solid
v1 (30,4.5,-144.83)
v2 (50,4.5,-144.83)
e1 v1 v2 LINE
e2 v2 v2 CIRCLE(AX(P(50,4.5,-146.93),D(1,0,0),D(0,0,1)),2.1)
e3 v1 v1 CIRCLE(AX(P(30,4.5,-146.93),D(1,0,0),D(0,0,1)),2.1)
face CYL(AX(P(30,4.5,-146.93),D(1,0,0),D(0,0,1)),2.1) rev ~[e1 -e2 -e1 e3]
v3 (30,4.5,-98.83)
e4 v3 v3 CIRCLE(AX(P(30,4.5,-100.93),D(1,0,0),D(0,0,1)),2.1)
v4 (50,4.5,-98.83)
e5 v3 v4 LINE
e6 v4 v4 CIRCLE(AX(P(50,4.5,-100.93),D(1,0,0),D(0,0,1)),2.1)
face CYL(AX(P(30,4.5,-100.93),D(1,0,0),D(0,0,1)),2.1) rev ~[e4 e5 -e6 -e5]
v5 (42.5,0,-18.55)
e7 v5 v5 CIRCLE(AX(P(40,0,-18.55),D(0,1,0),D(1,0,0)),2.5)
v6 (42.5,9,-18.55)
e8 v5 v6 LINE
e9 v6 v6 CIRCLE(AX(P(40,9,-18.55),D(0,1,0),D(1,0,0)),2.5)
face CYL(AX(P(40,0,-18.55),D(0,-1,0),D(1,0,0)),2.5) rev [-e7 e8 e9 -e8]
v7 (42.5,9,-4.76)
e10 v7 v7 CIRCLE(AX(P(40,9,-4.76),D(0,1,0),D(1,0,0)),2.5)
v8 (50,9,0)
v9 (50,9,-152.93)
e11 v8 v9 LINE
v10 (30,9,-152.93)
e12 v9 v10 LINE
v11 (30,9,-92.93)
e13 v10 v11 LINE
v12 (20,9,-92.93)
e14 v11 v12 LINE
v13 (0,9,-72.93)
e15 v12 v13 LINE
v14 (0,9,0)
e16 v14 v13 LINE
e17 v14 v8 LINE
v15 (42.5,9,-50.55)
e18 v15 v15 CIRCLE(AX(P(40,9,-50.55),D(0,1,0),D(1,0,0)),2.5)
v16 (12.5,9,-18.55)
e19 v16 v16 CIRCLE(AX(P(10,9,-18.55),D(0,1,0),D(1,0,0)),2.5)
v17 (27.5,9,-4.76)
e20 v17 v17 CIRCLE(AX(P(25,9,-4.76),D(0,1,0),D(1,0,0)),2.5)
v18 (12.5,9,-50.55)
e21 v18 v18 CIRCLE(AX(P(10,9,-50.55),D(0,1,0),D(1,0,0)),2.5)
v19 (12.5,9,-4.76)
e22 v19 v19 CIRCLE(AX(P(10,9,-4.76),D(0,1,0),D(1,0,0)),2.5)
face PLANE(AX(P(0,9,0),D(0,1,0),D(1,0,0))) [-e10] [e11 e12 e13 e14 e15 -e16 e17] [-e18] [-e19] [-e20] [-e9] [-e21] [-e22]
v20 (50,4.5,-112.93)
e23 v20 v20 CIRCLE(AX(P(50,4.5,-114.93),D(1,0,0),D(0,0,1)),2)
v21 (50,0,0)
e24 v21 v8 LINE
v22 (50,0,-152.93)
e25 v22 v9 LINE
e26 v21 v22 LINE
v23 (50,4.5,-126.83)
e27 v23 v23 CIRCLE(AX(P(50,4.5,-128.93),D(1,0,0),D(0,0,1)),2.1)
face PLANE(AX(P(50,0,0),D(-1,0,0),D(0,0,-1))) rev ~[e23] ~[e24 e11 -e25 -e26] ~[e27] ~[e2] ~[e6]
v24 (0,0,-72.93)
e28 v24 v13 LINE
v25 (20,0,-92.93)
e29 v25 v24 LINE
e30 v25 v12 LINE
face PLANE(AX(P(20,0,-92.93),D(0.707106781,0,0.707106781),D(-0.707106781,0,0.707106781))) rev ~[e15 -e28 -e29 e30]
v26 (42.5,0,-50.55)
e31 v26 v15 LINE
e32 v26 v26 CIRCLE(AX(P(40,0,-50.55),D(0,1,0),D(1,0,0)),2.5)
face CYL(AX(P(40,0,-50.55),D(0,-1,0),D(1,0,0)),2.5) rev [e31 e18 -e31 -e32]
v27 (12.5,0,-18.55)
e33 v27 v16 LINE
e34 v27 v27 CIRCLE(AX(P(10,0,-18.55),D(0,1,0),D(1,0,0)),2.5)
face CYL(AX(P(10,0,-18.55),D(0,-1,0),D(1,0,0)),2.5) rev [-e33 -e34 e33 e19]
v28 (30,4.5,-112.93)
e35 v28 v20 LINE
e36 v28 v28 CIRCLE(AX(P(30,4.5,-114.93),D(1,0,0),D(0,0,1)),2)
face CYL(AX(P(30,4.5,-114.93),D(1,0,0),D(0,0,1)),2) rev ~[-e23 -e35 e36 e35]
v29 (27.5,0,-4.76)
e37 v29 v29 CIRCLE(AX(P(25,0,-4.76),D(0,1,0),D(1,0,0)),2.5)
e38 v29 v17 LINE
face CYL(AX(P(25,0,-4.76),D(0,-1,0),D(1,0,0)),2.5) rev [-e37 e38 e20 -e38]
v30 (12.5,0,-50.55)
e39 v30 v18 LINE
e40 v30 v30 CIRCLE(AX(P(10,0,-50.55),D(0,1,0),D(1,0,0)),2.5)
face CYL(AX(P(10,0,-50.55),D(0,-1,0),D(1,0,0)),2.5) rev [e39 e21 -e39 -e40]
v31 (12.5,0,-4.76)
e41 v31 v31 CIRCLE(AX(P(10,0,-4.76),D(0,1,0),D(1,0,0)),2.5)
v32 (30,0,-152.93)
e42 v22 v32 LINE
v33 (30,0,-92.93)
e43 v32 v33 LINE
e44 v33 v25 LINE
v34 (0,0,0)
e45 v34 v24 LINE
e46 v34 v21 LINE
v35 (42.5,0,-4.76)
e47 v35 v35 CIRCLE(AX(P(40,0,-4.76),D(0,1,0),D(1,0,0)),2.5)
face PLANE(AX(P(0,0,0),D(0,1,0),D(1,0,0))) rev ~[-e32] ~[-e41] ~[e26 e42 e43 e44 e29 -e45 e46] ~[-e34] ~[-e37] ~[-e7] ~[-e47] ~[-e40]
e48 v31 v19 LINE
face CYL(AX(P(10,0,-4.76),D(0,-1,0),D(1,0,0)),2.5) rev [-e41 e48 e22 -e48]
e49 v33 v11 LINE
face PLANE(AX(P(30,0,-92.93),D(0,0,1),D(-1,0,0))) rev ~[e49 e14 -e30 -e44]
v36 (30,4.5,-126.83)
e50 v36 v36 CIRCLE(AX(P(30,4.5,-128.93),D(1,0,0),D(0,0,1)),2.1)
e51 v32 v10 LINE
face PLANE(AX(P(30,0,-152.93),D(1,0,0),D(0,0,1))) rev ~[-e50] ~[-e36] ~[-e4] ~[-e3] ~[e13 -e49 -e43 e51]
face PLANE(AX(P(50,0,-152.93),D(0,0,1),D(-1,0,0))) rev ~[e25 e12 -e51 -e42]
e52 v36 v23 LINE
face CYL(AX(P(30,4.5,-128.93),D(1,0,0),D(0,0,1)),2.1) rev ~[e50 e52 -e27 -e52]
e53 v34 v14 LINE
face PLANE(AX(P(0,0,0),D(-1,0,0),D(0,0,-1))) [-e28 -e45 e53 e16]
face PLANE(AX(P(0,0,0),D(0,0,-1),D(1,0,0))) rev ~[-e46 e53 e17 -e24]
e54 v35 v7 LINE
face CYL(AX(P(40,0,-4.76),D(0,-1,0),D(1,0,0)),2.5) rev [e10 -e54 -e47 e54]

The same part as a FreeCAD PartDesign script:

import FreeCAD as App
import Part
import Sketcher
from FreeCAD import Vector


def add_polygon(sketch, points):
    """Adds a closed chain of lines whose ends are joined by coincident constraints."""
    first, n = sketch.GeometryCount, len(points)
    for a, b in zip(points, points[1:] + points[:1]):
        sketch.addGeometry(Part.LineSegment(App.Vector(*a, 0), App.Vector(*b, 0)), False)
    for i in range(n):
        sketch.addConstraint(Sketcher.Constraint("Coincident", first + i, 2, first + (i + 1) % n, 1))

doc = App.newDocument("Part")
params = doc.addObject("Spreadsheet::Sheet", "Params")
for row, (alias, value) in enumerate([
    ("sketch1_diameter", "5 mm"),
    ("sketch1_width", "50 mm"),
    ("sketch1_width2", "20 mm"),
    ("sketch1_width3", "10 mm"),
    ("sketch1_height", "60 mm"),
    ("pad1_length", "9 mm"),
    ("sketch2_diameter", "4.2 mm"),
    ("hole_diameter", "4.2 mm"),
    ("hole_depth", "20 mm"),
    ("sketch3_diameter", "4.2 mm"),
    ("hole2_diameter", "4.2 mm"),
    ("sketch4_diameter", "4 mm"),
    ("hole3_diameter", "4 mm"),
    ("hole3_depth", "20 mm"),
    ("sketch5_diameter", "4.2 mm"),
    ("hole4_diameter", "4.2 mm"),
    ("hole4_depth", "20 mm"),
], start=1):
    params.set(f"A{row}", alias)
    params.set(f"B{row}", "=" + value)
    params.setAlias(f"B{row}", alias)

body = doc.addObject("PartDesign::Body", "Body")

# Sketch on XZ plane
sketch1 = body.newObject("Sketcher::SketchObject", "Sketch")
sketch1.AttachmentSupport = (doc.getObject("XZ_Plane"), [""])
sketch1.MapMode = "FlatFace"
add_polygon(sketch1, [(0, -72.93), (0, 0), (50, 0), (50, -152.93), (30, -152.93), (30, -92.93), (20, -92.93)])  # lines 0-6
sketch1.addGeometry(Part.Circle(Vector(10, -4.76, 0), Vector(0, 0, 1), 2.5), False)  # 7
sketch1.addGeometry(Part.Circle(Vector(10, -18.55, 0), Vector(0, 0, 1), 2.5), False)  # 8
sketch1.addGeometry(Part.Circle(Vector(10, -50.55, 0), Vector(0, 0, 1), 2.5), False)  # 9
sketch1.addGeometry(Part.Circle(Vector(25, -4.76, 0), Vector(0, 0, 1), 2.5), False)  # 10
sketch1.addGeometry(Part.Circle(Vector(40, -4.76, 0), Vector(0, 0, 1), 2.5), False)  # 11
sketch1.addGeometry(Part.Circle(Vector(40, -18.55, 0), Vector(0, 0, 1), 2.5), False)  # 12
sketch1.addGeometry(Part.Circle(Vector(40, -50.55, 0), Vector(0, 0, 1), 2.5), False)  # 13
sketch1.addConstraint([
    Sketcher.Constraint("Vertical", 0),
    Sketcher.Constraint("Horizontal", 1),
    Sketcher.Constraint("Vertical", 2),
    Sketcher.Constraint("Horizontal", 3),
    Sketcher.Constraint("Vertical", 4),
    Sketcher.Constraint("Horizontal", 5),
    Sketcher.Constraint("Coincident", 0, 2, -1, 1),
    Sketcher.Constraint("Equal", 7, 8),
    Sketcher.Constraint("Equal", 8, 9),
    Sketcher.Constraint("Equal", 9, 10),
    Sketcher.Constraint("Equal", 10, 11),
    Sketcher.Constraint("Equal", 11, 12),
    Sketcher.Constraint("Equal", 12, 13),
    Sketcher.Constraint("Horizontal", 7, 3, 10, 3),
    Sketcher.Constraint("Horizontal", 10, 3, 11, 3),
    Sketcher.Constraint("Horizontal", 8, 3, 12, 3),
    Sketcher.Constraint("Horizontal", 9, 3, 13, 3),
    Sketcher.Constraint("Vertical", 7, 3, 8, 3),
    Sketcher.Constraint("Vertical", 8, 3, 9, 3),
    Sketcher.Constraint("Vertical", 11, 3, 12, 3),
    Sketcher.Constraint("Vertical", 12, 3, 13, 3),
    Sketcher.Constraint("Diameter", 7, 5.0),
    Sketcher.Constraint("DistanceX", 1, 1, 1, 2, 50.0),
    Sketcher.Constraint("DistanceX", 3, 2, 3, 1, 20.0),
    Sketcher.Constraint("DistanceX", 5, 2, 5, 1, 10.0),
    Sketcher.Constraint("DistanceY", 4, 1, 4, 2, 60.0),
    Sketcher.Constraint("DistanceX", -1, 1, 7, 3, 10.0),
    Sketcher.Constraint("DistanceX", -1, 1, 10, 3, 25.0),
    Sketcher.Constraint("DistanceX", -1, 1, 11, 3, 40.0),
    Sketcher.Constraint("DistanceY", 9, 3, 8, 3, 32.0),
    Sketcher.Constraint("DistanceY", 5, 2, 6, 2, 20.0),
    Sketcher.Constraint("DistanceY", 0, 1, 0, 2, 72.93),
    Sketcher.Constraint("DistanceY", 7, 3, -1, 1, 4.76),
    Sketcher.Constraint("DistanceY", 8, 3, -1, 1, 18.55),
])
sketch1.setExpression("Constraints[28]", "Params.sketch1_diameter")
sketch1.setExpression("Constraints[29]", "Params.sketch1_width")
sketch1.setExpression("Constraints[30]", "Params.sketch1_width2")
sketch1.setExpression("Constraints[31]", "Params.sketch1_width3")
sketch1.setExpression("Constraints[32]", "Params.sketch1_height")
pad1 = body.newObject("PartDesign::Pad", "Pad")
pad1.Profile = sketch1
pad1.setExpression("Length", "Params.pad1_length")
pad1.Reversed = True

# Sketch on YZ plane
sketch2 = body.newObject("Sketcher::SketchObject", "Sketch001")
sketch2.AttachmentSupport = (doc.getObject("YZ_Plane"), [""])
sketch2.MapMode = "FlatFace"
sketch2.AttachmentOffset = App.Placement(Vector(0, 0, 30), App.Rotation())
sketch2.addGeometry(Part.Circle(Vector(4.5, -146.93, 0), Vector(0, 0, 1), 2.1), False)
sketch2.addConstraint([
    Sketcher.Constraint("Diameter", 0, 4.2),
    Sketcher.Constraint("DistanceX", -1, 1, 0, 3, 4.5),
    Sketcher.Constraint("DistanceY", 0, 3, -1, 1, 146.93),
])
sketch2.setExpression("Constraints[0]", "Params.sketch2_diameter")
doc.recompute()
hole = body.newObject("PartDesign::Hole", "Hole")
hole.Profile = sketch2
hole.ThreadType = "None"
hole.setExpression("Diameter", "Params.hole_diameter")
hole.DepthType = "Dimension"
hole.setExpression("Depth", "Params.hole_depth")
hole.DrillPoint = "Angled"
hole.DrillPointAngle = 118
hole.Reversed = True

# Sketch on YZ plane
sketch3 = body.newObject("Sketcher::SketchObject", "Sketch002")
sketch3.AttachmentSupport = (doc.getObject("YZ_Plane"), [""])
sketch3.MapMode = "FlatFace"
sketch3.AttachmentOffset = App.Placement(Vector(0, 0, 30), App.Rotation())
sketch3.addGeometry(Part.Circle(Vector(4.5, -128.93, 0), Vector(0, 0, 1), 2.1), False)
sketch3.addConstraint([
    Sketcher.Constraint("Diameter", 0, 4.2),
    Sketcher.Constraint("DistanceX", -1, 1, 0, 3, 4.5),
    Sketcher.Constraint("DistanceY", 0, 3, -1, 1, 128.93),
])
sketch3.setExpression("Constraints[0]", "Params.sketch3_diameter")
doc.recompute()
hole2 = body.newObject("PartDesign::Hole", "Hole001")
hole2.Profile = sketch3
hole2.ThreadType = "None"
hole2.setExpression("Diameter", "Params.hole2_diameter")
hole2.DepthType = "ThroughAll"
hole2.Reversed = True

# Sketch on YZ plane
sketch4 = body.newObject("Sketcher::SketchObject", "Sketch003")
sketch4.AttachmentSupport = (doc.getObject("YZ_Plane"), [""])
sketch4.MapMode = "FlatFace"
sketch4.AttachmentOffset = App.Placement(Vector(0, 0, 30), App.Rotation())
sketch4.addGeometry(Part.Circle(Vector(4.5, -114.93, 0), Vector(0, 0, 1), 2), False)
sketch4.addConstraint([
    Sketcher.Constraint("Diameter", 0, 4.0),
    Sketcher.Constraint("DistanceX", -1, 1, 0, 3, 4.5),
    Sketcher.Constraint("DistanceY", 0, 3, -1, 1, 114.93),
])
sketch4.setExpression("Constraints[0]", "Params.sketch4_diameter")
doc.recompute()
hole3 = body.newObject("PartDesign::Hole", "Hole002")
hole3.Profile = sketch4
hole3.ThreadType = "None"
hole3.setExpression("Diameter", "Params.hole3_diameter")
hole3.DepthType = "Dimension"
hole3.setExpression("Depth", "Params.hole3_depth")
hole3.DrillPoint = "Angled"
hole3.DrillPointAngle = 118
hole3.Reversed = True

# Sketch on YZ plane
sketch5 = body.newObject("Sketcher::SketchObject", "Sketch004")
sketch5.AttachmentSupport = (doc.getObject("YZ_Plane"), [""])
sketch5.MapMode = "FlatFace"
sketch5.AttachmentOffset = App.Placement(Vector(0, 0, 30), App.Rotation())
sketch5.addGeometry(Part.Circle(Vector(4.5, -100.93, 0), Vector(0, 0, 1), 2.1), False)
sketch5.addConstraint([
    Sketcher.Constraint("Diameter", 0, 4.2),
    Sketcher.Constraint("DistanceX", -1, 1, 0, 3, 4.5),
    Sketcher.Constraint("DistanceY", 0, 3, -1, 1, 100.93),
])
sketch5.setExpression("Constraints[0]", "Params.sketch5_diameter")
doc.recompute()
hole4 = body.newObject("PartDesign::Hole", "Hole003")
hole4.Profile = sketch5
hole4.ThreadType = "None"
hole4.setExpression("Diameter", "Params.hole4_diameter")
hole4.DepthType = "Dimension"
hole4.setExpression("Depth", "Params.hole4_depth")
hole4.DrillPoint = "Angled"
hole4.DrillPointAngle = 118
hole4.Reversed = True

doc.recompute()
